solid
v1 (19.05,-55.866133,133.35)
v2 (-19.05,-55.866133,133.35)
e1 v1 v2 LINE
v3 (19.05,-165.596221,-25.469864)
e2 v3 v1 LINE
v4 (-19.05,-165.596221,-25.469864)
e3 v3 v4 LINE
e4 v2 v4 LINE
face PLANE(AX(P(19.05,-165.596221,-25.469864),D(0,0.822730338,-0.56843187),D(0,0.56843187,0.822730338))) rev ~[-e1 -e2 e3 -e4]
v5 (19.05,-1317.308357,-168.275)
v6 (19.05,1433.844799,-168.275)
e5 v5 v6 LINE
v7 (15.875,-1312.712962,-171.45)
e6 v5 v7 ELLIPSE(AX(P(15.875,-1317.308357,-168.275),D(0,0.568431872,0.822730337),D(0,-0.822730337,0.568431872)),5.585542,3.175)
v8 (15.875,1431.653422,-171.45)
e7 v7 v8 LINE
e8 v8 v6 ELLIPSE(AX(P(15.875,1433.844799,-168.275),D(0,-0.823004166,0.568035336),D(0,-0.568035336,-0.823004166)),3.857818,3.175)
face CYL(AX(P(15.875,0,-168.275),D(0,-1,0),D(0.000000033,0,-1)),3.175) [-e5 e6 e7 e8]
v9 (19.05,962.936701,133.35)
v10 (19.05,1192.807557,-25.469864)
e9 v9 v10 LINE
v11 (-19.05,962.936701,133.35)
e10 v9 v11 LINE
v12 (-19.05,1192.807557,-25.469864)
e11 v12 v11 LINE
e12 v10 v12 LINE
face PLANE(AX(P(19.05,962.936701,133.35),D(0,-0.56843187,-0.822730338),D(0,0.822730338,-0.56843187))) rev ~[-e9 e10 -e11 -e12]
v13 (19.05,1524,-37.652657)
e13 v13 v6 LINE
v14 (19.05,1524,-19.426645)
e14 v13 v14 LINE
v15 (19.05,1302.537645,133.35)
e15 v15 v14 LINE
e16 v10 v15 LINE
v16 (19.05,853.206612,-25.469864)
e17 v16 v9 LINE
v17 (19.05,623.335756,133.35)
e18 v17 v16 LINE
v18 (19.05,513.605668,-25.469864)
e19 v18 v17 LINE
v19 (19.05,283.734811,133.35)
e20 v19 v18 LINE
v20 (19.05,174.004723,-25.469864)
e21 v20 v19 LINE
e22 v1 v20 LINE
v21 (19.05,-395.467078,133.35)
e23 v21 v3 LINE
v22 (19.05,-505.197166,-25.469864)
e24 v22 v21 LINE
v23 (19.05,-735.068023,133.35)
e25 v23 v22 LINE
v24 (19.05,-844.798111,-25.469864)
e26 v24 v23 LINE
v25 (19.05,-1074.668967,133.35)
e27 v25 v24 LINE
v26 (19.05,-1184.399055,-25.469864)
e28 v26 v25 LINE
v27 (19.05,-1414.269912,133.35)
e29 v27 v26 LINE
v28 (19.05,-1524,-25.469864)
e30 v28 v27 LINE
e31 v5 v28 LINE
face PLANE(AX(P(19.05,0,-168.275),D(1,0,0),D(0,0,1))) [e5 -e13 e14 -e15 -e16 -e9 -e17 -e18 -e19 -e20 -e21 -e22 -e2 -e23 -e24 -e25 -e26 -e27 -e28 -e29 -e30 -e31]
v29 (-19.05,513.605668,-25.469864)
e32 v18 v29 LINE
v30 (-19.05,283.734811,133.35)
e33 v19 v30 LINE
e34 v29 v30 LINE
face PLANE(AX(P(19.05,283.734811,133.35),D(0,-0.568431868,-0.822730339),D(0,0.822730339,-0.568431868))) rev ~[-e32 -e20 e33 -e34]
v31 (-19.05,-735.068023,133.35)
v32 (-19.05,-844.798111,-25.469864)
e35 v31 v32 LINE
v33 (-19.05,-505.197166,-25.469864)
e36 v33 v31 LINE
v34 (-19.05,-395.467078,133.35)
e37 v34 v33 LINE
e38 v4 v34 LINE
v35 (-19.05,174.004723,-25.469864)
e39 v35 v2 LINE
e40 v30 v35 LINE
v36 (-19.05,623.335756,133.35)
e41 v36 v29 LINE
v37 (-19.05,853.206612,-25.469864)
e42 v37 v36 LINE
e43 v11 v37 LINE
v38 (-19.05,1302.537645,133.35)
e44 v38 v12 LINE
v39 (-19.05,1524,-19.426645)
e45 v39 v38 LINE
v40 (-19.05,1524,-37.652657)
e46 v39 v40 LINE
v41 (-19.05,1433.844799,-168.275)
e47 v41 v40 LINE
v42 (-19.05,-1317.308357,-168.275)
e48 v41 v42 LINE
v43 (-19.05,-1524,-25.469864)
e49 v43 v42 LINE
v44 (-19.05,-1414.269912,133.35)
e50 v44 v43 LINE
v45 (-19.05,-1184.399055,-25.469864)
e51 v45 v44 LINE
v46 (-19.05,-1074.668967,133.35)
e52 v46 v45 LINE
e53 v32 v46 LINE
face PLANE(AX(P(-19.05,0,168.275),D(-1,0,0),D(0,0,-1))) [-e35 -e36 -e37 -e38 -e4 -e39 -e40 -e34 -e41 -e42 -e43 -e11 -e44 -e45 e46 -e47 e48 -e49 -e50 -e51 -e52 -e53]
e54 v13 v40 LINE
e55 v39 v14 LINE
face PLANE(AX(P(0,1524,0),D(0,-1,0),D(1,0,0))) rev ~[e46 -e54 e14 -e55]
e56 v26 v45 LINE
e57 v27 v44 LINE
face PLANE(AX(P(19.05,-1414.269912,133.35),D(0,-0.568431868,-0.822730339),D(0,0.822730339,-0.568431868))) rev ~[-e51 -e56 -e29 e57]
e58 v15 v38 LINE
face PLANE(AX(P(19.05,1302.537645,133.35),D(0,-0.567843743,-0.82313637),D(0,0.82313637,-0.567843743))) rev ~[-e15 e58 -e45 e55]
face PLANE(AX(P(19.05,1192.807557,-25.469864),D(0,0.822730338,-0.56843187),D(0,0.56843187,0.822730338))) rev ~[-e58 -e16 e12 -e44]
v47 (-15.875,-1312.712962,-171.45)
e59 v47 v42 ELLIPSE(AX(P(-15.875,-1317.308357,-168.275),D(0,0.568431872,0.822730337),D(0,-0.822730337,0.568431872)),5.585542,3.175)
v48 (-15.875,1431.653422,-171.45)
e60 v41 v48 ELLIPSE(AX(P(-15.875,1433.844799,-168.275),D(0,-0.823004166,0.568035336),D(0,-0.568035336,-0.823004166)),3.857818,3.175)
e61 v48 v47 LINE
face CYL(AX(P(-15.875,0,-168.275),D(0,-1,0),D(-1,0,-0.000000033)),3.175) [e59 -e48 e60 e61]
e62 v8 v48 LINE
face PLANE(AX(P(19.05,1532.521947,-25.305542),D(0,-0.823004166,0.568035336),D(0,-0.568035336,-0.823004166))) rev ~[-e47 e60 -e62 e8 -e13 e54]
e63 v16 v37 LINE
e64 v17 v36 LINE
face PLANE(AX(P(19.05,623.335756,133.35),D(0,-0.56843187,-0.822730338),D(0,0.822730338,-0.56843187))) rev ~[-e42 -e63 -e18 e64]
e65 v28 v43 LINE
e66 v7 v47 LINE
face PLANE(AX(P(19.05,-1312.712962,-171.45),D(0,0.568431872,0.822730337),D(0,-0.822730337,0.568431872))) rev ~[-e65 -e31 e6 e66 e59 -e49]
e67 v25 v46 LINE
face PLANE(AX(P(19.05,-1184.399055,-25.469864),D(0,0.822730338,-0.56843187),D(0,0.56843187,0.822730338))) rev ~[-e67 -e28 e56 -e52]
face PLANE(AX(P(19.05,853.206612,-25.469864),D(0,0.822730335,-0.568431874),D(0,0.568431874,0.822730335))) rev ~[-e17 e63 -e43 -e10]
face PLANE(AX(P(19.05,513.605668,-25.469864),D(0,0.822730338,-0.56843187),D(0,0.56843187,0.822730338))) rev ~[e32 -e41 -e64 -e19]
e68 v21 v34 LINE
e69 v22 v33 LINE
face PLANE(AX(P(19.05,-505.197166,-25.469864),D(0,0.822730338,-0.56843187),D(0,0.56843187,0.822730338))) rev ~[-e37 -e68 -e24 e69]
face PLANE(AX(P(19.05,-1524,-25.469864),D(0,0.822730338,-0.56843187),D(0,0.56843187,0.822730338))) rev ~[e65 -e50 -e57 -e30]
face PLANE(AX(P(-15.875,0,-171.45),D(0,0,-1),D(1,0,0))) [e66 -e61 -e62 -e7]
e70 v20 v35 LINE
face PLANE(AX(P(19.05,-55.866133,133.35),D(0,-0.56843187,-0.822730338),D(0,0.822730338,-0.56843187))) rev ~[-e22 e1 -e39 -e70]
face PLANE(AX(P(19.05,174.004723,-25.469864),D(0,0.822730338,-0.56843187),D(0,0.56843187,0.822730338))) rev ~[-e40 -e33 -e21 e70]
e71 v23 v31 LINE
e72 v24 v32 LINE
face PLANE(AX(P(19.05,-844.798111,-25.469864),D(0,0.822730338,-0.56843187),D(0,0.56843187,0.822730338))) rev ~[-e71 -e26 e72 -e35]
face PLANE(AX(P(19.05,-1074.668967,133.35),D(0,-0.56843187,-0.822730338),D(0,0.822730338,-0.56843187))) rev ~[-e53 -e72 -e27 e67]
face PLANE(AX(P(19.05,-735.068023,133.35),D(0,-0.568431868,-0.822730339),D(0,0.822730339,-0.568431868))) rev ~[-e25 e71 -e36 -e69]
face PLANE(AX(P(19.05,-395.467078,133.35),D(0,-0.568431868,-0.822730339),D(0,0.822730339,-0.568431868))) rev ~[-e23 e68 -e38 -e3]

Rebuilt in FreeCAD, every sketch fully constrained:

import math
import FreeCAD as App
import Part
import Sketcher

V = App.Vector
Q = App.Units.Quantity


def add_polygon(sketch, points):
    """Adds a closed chain of lines whose ends are joined by coincident constraints."""
    first, n = sketch.GeometryCount, len(points)
    for a, b in zip(points, points[1:] + points[:1]):
        sketch.addGeometry(Part.LineSegment(App.Vector(*a, 0), App.Vector(*b, 0)), False)
    for i in range(n):
        sketch.addConstraint(Sketcher.Constraint("Coincident", first + i, 2, first + (i + 1) % n, 1))

doc = App.newDocument("Part")
body = doc.addObject("PartDesign::Body", "Body")

# Sketch on XZ plane
sketch1 = body.newObject("Sketcher::SketchObject", "Sketch")
sketch1.AttachmentSupport = (doc.getObject("XZ_Plane"), [""])
sketch1.MapMode = "FlatFace"
sketch1.addGeometry([
    Part.ArcOfCircle(Part.Circle(V(15.9, 168.3, 0), V(0, 0, 1), 3.2), math.radians(0), math.radians(90)),  # 0
    Part.LineSegment(V(15.9, 171.4, 0), V(-15.9, 171.4, 0)),  # 1
    Part.ArcOfCircle(Part.Circle(V(-15.9, 168.3, 0), V(0, 0, 1), 3.2), math.radians(90), math.radians(180)),  # 2
    Part.LineSegment(V(-19.1, 168.3, 0), V(-19.1, -168.3, 0)),  # 3
    Part.ArcOfCircle(Part.Circle(V(-15.9, -168.3, 0), V(0, 0, 1), 3.2), math.radians(-180), math.radians(-90)),  # 4
    Part.LineSegment(V(-15.9, -171.4, 0), V(15.9, -171.4, 0)),  # 5
    Part.ArcOfCircle(Part.Circle(V(15.9, -168.3, 0), V(0, 0, 1), 3.2), math.radians(-90), math.radians(0)),  # 6
    Part.LineSegment(V(19.1, -168.3, 0), V(19.1, 168.3, 0)),  # 7
], False)
sketch1.addConstraint([
    Sketcher.Constraint("Tangent", 0, 2, 1, 1),
    Sketcher.Constraint("Tangent", 1, 2, 2, 1),
    Sketcher.Constraint("Tangent", 2, 2, 3, 1),
    Sketcher.Constraint("Tangent", 3, 2, 4, 1),
    Sketcher.Constraint("Tangent", 4, 2, 5, 1),
    Sketcher.Constraint("Tangent", 5, 2, 6, 1),
    Sketcher.Constraint("Tangent", 6, 2, 7, 1),
    Sketcher.Constraint("Tangent", 7, 2, 0, 1),
    Sketcher.Constraint("Horizontal", 1),
    Sketcher.Constraint("Vertical", 3),
    Sketcher.Constraint("Horizontal", 5),
    Sketcher.Constraint("Vertical", 7),
    Sketcher.Constraint("Equal", 0, 2),
    Sketcher.Constraint("Equal", 2, 4),
    Sketcher.Constraint("Equal", 4, 6),
    Sketcher.Constraint("Symmetric", 0, 3, 4, 3, -1, 1),
    Sketcher.Constraint("Radius", 0, Q("0.125 in")),
    Sketcher.Constraint("DistanceX", 1, 2, 1, 1, Q("1.25 in")),
    Sketcher.Constraint("DistanceY", 3, 2, 3, 1, Q("13.25 in")),
])
pad1 = body.newObject("PartDesign::Pad", "Pad")
pad1.Profile = sketch1
pad1.Length = Q("120 in")
pad1.Midplane = True

# Sketch on YZ plane
sketch2 = body.newObject("Sketcher::SketchObject", "Sketch001")
sketch2.AttachmentSupport = (doc.getObject("YZ_Plane"), [""])
sketch2.MapMode = "FlatFace"
sketch2.AttachmentOffset = App.Placement(V(0, 0, 0.75 * 25.4), App.Rotation())
add_polygon(sketch2, [(1303, 133), (1533, -25), (1432, -171), (1727, -171), (1727, 298), (-1716, 298), (-1716, -171), (-1313, -171), (-1524, -25), (-1414, 133), (-1184, -25), (-1075, 133), (-845, -25), (-735, 133), (-505, -25), (-395, 133), (-166, -25), (-56, 133), (174, -25), (284, 133), (514, -25), (623, 133), (853, -25), (963, 133), (1193, -25)])  # lines 0-24
sketch2.addConstraint([
    Sketcher.Constraint("Horizontal", 2),
    Sketcher.Constraint("Vertical", 3),
    Sketcher.Constraint("Horizontal", 4),
    Sketcher.Constraint("Vertical", 5),
    Sketcher.Constraint("Horizontal", 6),
    Sketcher.Constraint("Perpendicular", 7, 8),
    Sketcher.Constraint("Perpendicular", 8, 9),
    Sketcher.Constraint("Perpendicular", 9, 10),
    Sketcher.Constraint("Perpendicular", 10, 11),
    Sketcher.Constraint("Perpendicular", 11, 12),
    Sketcher.Constraint("Perpendicular", 12, 13),
    Sketcher.Constraint("Perpendicular", 13, 14),
    Sketcher.Constraint("Perpendicular", 14, 15),
    Sketcher.Constraint("Perpendicular", 15, 16),
    Sketcher.Constraint("Perpendicular", 16, 17),
    Sketcher.Constraint("Perpendicular", 17, 18),
    Sketcher.Constraint("Perpendicular", 18, 19),
    Sketcher.Constraint("Perpendicular", 19, 20),
    Sketcher.Constraint("Perpendicular", 20, 21),
    Sketcher.Constraint("Perpendicular", 21, 22),
    Sketcher.Constraint("Perpendicular", 22, 23),
    Sketcher.Constraint("Perpendicular", 23, 24),
    Sketcher.Constraint("Horizontal", 2, 2, 5, 2),
    Sketcher.Constraint("Horizontal", 7, 2, 9, 2),
    Sketcher.Constraint("Horizontal", 8, 2, 10, 2),
    Sketcher.Constraint("Horizontal", 9, 2, 11, 2),
    Sketcher.Constraint("Horizontal", 10, 2, 12, 2),
    Sketcher.Constraint("Horizontal", 11, 2, 13, 2),
    Sketcher.Constraint("Horizontal", 12, 2, 14, 2),
    Sketcher.Constraint("Horizontal", 13, 2, 15, 2),
    Sketcher.Constraint("Horizontal", 14, 2, 16, 2),
    Sketcher.Constraint("Horizontal", 15, 2, 17, 2),
    Sketcher.Constraint("Horizontal", 16, 2, 18, 2),
    Sketcher.Constraint("Horizontal", 17, 2, 19, 2),
    Sketcher.Constraint("Horizontal", 18, 2, 20, 2),
    Sketcher.Constraint("Horizontal", 19, 2, 21, 2),
    Sketcher.Constraint("Horizontal", 20, 2, 22, 2),
    Sketcher.Constraint("Horizontal", 21, 2, 23, 2),
    Sketcher.Constraint("Horizontal", 22, 2, 24, 2),
    Sketcher.Constraint("Equal", 0, 9),
    Sketcher.Constraint("Distance", 0, Q("11 in")),
    Sketcher.Constraint("DistanceX", 7, 2, -1, 1, Q("60 in")),
    Sketcher.Constraint("DistanceY", 6, 2, 8, 2, Q("12 in")),
    Sketcher.Constraint("Distance", 8, Q("7.6 in")),
    Sketcher.Constraint("Angle", 0, Q("-34.6 deg")),
    Sketcher.Constraint("DistanceY", 1, 2, -1, 1, Q("6.75 in")),
    Sketcher.Constraint("DistanceX", 4, 2, 4, 1, Q("3442.730069 mm")),
    Sketcher.Constraint("DistanceX", 6, 1, 6, 2, Q("403.45866 mm")),
    Sketcher.Constraint("DistanceX", 2, 1, 2, 2, Q("294.905025 mm")),
    Sketcher.Constraint("DistanceY", 3, 1, 3, 2, Q("469.293307 mm")),
])
pocket1 = body.newObject("PartDesign::Pocket", "Pocket")
pocket1.Profile = sketch2
pocket1.Type = "ThroughAll"

doc.recompute()
